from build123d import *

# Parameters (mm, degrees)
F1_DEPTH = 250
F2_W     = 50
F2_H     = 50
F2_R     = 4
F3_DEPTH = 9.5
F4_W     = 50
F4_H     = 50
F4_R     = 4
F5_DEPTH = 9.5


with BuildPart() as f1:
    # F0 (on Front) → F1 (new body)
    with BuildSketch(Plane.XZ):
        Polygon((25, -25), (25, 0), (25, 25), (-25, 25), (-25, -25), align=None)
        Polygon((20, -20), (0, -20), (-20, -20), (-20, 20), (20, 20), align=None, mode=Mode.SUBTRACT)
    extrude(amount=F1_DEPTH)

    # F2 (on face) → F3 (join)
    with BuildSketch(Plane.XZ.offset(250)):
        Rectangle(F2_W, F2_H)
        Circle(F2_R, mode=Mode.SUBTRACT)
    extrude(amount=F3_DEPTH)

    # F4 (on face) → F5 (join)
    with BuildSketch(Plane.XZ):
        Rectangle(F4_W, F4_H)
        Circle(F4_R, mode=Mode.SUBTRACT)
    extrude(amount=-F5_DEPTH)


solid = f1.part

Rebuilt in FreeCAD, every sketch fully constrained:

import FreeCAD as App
import Part
import Sketcher
from FreeCAD import Vector

doc = App.newDocument("Part")
params = doc.addObject("Spreadsheet::Sheet", "Params")
for row, (alias, value) in enumerate([
    ("sketch1_width", "50 mm"),
    ("sketch1_width2", "40 mm"),
    ("pad1_length", "250 mm"),
    ("sketch2_diameter", "8 mm"),
    ("sketch2_width", "50 mm"),
    ("pad2_length", "9.5 mm"),
    ("sketch3_diameter", "8 mm"),
    ("sketch3_width", "50 mm"),
    ("pad3_length", "9.5 mm"),
], start=1):
    params.set(f"A{row}", alias)
    params.set(f"B{row}", "=" + value)
    params.setAlias(f"B{row}", alias)

body = doc.addObject("PartDesign::Body", "Body")

# Sketch on XZ plane
sketch1 = body.newObject("Sketcher::SketchObject", "Sketch")
sketch1.AttachmentSupport = (doc.getObject("XZ_Plane"), [""])
sketch1.MapMode = "FlatFace"
sketch1.addGeometry([
    Part.LineSegment(Vector(25, -25, 0), Vector(25, 25, 0)),  # 0
    Part.LineSegment(Vector(25, 25, 0), Vector(-25, 25, 0)),  # 1
    Part.LineSegment(Vector(-25, 25, 0), Vector(-25, -25, 0)),  # 2
    Part.LineSegment(Vector(-25, -25, 0), Vector(25, -25, 0)),  # 3
    Part.LineSegment(Vector(20, 20, 0), Vector(20, -20, 0)),  # 4
    Part.LineSegment(Vector(20, -20, 0), Vector(-20, -20, 0)),  # 5
    Part.LineSegment(Vector(-20, -20, 0), Vector(-20, 20, 0)),  # 6
    Part.LineSegment(Vector(-20, 20, 0), Vector(20, 20, 0)),  # 7
], False)
sketch1.addConstraint([
    Sketcher.Constraint("Coincident", 0, 2, 1, 1),
    Sketcher.Constraint("Coincident", 1, 2, 2, 1),
    Sketcher.Constraint("Coincident", 2, 2, 3, 1),
    Sketcher.Constraint("Coincident", 3, 2, 0, 1),
    Sketcher.Constraint("Coincident", 4, 2, 5, 1),
    Sketcher.Constraint("Coincident", 5, 2, 6, 1),
    Sketcher.Constraint("Coincident", 6, 2, 7, 1),
    Sketcher.Constraint("Coincident", 7, 2, 4, 1),
    Sketcher.Constraint("Vertical", 0),
    Sketcher.Constraint("Horizontal", 1),
    Sketcher.Constraint("Vertical", 2),
    Sketcher.Constraint("Horizontal", 3),
    Sketcher.Constraint("Vertical", 4),
    Sketcher.Constraint("Horizontal", 5),
    Sketcher.Constraint("Vertical", 6),
    Sketcher.Constraint("Horizontal", 7),
    Sketcher.Constraint("Symmetric", 0, 2, 2, 2, -1, 1),
    Sketcher.Constraint("Symmetric", 4, 2, 6, 2, -1, 1),
    Sketcher.Constraint("Equal", 3, 0),
    Sketcher.Constraint("Equal", 7, 4),
    Sketcher.Constraint("DistanceX", 1, 2, 1, 1, 50.0),
    Sketcher.Constraint("DistanceX", 5, 2, 5, 1, 40.0),
])
sketch1.setExpression("Constraints[20]", "Params.sketch1_width")
sketch1.setExpression("Constraints[21]", "Params.sketch1_width2")
pad1 = body.newObject("PartDesign::Pad", "Pad")
pad1.Profile = sketch1
pad1.setExpression("Length", "Params.pad1_length")

# Sketch on XZ plane
sketch2 = body.newObject("Sketcher::SketchObject", "Sketch001")
sketch2.AttachmentSupport = (doc.getObject("XZ_Plane"), [""])
sketch2.MapMode = "FlatFace"
sketch2.AttachmentOffset = App.Placement(Vector(0, 0, 250), App.Rotation())
sketch2.addGeometry([
    Part.LineSegment(Vector(-25, 25, 0), Vector(-25, -25, 0)),  # 0
    Part.LineSegment(Vector(-25, -25, 0), Vector(25, -25, 0)),  # 1
    Part.LineSegment(Vector(25, -25, 0), Vector(25, 25, 0)),  # 2
    Part.LineSegment(Vector(25, 25, 0), Vector(-25, 25, 0)),  # 3
    Part.Circle(Vector(0, 0, 0), Vector(0, 0, 1), 4),  # 4
], False)
sketch2.addConstraint([
    Sketcher.Constraint("Coincident", 0, 2, 1, 1),
    Sketcher.Constraint("Coincident", 1, 2, 2, 1),
    Sketcher.Constraint("Coincident", 2, 2, 3, 1),
    Sketcher.Constraint("Coincident", 3, 2, 0, 1),
    Sketcher.Constraint("Vertical", 0),
    Sketcher.Constraint("Horizontal", 1),
    Sketcher.Constraint("Vertical", 2),
    Sketcher.Constraint("Horizontal", 3),
    Sketcher.Constraint("Coincident", 4, 3, -1, 1),
    Sketcher.Constraint("Symmetric", 0, 2, 2, 2, -1, 1),
    Sketcher.Constraint("Equal", 3, 0),
    Sketcher.Constraint("Diameter", 4, 8.0),
    Sketcher.Constraint("DistanceX", 1, 1, 1, 2, 50.0),
])
sketch2.setExpression("Constraints[11]", "Params.sketch2_diameter")
sketch2.setExpression("Constraints[12]", "Params.sketch2_width")
pad2 = body.newObject("PartDesign::Pad", "Pad001")
pad2.Profile = sketch2
pad2.setExpression("Length", "Params.pad2_length")

# Sketch on XZ plane
sketch3 = body.newObject("Sketcher::SketchObject", "Sketch002")
sketch3.AttachmentSupport = (doc.getObject("XZ_Plane"), [""])
sketch3.MapMode = "FlatFace"
sketch3.addGeometry([
    Part.LineSegment(Vector(-25, 25, 0), Vector(-25, -25, 0)),  # 0
    Part.LineSegment(Vector(-25, -25, 0), Vector(25, -25, 0)),  # 1
    Part.LineSegment(Vector(25, -25, 0), Vector(25, 25, 0)),  # 2
    Part.LineSegment(Vector(25, 25, 0), Vector(-25, 25, 0)),  # 3
    Part.Circle(Vector(0, 0, 0), Vector(0, 0, 1), 4),  # 4
], False)
sketch3.addConstraint([
    Sketcher.Constraint("Coincident", 0, 2, 1, 1),
    Sketcher.Constraint("Coincident", 1, 2, 2, 1),
    Sketcher.Constraint("Coincident", 2, 2, 3, 1),
    Sketcher.Constraint("Coincident", 3, 2, 0, 1),
    Sketcher.Constraint("Vertical", 0),
    Sketcher.Constraint("Horizontal", 1),
    Sketcher.Constraint("Vertical", 2),
    Sketcher.Constraint("Horizontal", 3),
    Sketcher.Constraint("Coincident", 4, 3, -1, 1),
    Sketcher.Constraint("Symmetric", 0, 2, 2, 2, -1, 1),
    Sketcher.Constraint("Equal", 3, 0),
    Sketcher.Constraint("Diameter", 4, 8.0),
    Sketcher.Constraint("DistanceX", 1, 1, 1, 2, 50.0),
])
sketch3.setExpression("Constraints[11]", "Params.sketch3_diameter")
sketch3.setExpression("Constraints[12]", "Params.sketch3_width")
pad3 = body.newObject("PartDesign::Pad", "Pad002")
pad3.Profile = sketch3
pad3.setExpression("Length", "Params.pad3_length")
pad3.Reversed = True

doc.recompute()
